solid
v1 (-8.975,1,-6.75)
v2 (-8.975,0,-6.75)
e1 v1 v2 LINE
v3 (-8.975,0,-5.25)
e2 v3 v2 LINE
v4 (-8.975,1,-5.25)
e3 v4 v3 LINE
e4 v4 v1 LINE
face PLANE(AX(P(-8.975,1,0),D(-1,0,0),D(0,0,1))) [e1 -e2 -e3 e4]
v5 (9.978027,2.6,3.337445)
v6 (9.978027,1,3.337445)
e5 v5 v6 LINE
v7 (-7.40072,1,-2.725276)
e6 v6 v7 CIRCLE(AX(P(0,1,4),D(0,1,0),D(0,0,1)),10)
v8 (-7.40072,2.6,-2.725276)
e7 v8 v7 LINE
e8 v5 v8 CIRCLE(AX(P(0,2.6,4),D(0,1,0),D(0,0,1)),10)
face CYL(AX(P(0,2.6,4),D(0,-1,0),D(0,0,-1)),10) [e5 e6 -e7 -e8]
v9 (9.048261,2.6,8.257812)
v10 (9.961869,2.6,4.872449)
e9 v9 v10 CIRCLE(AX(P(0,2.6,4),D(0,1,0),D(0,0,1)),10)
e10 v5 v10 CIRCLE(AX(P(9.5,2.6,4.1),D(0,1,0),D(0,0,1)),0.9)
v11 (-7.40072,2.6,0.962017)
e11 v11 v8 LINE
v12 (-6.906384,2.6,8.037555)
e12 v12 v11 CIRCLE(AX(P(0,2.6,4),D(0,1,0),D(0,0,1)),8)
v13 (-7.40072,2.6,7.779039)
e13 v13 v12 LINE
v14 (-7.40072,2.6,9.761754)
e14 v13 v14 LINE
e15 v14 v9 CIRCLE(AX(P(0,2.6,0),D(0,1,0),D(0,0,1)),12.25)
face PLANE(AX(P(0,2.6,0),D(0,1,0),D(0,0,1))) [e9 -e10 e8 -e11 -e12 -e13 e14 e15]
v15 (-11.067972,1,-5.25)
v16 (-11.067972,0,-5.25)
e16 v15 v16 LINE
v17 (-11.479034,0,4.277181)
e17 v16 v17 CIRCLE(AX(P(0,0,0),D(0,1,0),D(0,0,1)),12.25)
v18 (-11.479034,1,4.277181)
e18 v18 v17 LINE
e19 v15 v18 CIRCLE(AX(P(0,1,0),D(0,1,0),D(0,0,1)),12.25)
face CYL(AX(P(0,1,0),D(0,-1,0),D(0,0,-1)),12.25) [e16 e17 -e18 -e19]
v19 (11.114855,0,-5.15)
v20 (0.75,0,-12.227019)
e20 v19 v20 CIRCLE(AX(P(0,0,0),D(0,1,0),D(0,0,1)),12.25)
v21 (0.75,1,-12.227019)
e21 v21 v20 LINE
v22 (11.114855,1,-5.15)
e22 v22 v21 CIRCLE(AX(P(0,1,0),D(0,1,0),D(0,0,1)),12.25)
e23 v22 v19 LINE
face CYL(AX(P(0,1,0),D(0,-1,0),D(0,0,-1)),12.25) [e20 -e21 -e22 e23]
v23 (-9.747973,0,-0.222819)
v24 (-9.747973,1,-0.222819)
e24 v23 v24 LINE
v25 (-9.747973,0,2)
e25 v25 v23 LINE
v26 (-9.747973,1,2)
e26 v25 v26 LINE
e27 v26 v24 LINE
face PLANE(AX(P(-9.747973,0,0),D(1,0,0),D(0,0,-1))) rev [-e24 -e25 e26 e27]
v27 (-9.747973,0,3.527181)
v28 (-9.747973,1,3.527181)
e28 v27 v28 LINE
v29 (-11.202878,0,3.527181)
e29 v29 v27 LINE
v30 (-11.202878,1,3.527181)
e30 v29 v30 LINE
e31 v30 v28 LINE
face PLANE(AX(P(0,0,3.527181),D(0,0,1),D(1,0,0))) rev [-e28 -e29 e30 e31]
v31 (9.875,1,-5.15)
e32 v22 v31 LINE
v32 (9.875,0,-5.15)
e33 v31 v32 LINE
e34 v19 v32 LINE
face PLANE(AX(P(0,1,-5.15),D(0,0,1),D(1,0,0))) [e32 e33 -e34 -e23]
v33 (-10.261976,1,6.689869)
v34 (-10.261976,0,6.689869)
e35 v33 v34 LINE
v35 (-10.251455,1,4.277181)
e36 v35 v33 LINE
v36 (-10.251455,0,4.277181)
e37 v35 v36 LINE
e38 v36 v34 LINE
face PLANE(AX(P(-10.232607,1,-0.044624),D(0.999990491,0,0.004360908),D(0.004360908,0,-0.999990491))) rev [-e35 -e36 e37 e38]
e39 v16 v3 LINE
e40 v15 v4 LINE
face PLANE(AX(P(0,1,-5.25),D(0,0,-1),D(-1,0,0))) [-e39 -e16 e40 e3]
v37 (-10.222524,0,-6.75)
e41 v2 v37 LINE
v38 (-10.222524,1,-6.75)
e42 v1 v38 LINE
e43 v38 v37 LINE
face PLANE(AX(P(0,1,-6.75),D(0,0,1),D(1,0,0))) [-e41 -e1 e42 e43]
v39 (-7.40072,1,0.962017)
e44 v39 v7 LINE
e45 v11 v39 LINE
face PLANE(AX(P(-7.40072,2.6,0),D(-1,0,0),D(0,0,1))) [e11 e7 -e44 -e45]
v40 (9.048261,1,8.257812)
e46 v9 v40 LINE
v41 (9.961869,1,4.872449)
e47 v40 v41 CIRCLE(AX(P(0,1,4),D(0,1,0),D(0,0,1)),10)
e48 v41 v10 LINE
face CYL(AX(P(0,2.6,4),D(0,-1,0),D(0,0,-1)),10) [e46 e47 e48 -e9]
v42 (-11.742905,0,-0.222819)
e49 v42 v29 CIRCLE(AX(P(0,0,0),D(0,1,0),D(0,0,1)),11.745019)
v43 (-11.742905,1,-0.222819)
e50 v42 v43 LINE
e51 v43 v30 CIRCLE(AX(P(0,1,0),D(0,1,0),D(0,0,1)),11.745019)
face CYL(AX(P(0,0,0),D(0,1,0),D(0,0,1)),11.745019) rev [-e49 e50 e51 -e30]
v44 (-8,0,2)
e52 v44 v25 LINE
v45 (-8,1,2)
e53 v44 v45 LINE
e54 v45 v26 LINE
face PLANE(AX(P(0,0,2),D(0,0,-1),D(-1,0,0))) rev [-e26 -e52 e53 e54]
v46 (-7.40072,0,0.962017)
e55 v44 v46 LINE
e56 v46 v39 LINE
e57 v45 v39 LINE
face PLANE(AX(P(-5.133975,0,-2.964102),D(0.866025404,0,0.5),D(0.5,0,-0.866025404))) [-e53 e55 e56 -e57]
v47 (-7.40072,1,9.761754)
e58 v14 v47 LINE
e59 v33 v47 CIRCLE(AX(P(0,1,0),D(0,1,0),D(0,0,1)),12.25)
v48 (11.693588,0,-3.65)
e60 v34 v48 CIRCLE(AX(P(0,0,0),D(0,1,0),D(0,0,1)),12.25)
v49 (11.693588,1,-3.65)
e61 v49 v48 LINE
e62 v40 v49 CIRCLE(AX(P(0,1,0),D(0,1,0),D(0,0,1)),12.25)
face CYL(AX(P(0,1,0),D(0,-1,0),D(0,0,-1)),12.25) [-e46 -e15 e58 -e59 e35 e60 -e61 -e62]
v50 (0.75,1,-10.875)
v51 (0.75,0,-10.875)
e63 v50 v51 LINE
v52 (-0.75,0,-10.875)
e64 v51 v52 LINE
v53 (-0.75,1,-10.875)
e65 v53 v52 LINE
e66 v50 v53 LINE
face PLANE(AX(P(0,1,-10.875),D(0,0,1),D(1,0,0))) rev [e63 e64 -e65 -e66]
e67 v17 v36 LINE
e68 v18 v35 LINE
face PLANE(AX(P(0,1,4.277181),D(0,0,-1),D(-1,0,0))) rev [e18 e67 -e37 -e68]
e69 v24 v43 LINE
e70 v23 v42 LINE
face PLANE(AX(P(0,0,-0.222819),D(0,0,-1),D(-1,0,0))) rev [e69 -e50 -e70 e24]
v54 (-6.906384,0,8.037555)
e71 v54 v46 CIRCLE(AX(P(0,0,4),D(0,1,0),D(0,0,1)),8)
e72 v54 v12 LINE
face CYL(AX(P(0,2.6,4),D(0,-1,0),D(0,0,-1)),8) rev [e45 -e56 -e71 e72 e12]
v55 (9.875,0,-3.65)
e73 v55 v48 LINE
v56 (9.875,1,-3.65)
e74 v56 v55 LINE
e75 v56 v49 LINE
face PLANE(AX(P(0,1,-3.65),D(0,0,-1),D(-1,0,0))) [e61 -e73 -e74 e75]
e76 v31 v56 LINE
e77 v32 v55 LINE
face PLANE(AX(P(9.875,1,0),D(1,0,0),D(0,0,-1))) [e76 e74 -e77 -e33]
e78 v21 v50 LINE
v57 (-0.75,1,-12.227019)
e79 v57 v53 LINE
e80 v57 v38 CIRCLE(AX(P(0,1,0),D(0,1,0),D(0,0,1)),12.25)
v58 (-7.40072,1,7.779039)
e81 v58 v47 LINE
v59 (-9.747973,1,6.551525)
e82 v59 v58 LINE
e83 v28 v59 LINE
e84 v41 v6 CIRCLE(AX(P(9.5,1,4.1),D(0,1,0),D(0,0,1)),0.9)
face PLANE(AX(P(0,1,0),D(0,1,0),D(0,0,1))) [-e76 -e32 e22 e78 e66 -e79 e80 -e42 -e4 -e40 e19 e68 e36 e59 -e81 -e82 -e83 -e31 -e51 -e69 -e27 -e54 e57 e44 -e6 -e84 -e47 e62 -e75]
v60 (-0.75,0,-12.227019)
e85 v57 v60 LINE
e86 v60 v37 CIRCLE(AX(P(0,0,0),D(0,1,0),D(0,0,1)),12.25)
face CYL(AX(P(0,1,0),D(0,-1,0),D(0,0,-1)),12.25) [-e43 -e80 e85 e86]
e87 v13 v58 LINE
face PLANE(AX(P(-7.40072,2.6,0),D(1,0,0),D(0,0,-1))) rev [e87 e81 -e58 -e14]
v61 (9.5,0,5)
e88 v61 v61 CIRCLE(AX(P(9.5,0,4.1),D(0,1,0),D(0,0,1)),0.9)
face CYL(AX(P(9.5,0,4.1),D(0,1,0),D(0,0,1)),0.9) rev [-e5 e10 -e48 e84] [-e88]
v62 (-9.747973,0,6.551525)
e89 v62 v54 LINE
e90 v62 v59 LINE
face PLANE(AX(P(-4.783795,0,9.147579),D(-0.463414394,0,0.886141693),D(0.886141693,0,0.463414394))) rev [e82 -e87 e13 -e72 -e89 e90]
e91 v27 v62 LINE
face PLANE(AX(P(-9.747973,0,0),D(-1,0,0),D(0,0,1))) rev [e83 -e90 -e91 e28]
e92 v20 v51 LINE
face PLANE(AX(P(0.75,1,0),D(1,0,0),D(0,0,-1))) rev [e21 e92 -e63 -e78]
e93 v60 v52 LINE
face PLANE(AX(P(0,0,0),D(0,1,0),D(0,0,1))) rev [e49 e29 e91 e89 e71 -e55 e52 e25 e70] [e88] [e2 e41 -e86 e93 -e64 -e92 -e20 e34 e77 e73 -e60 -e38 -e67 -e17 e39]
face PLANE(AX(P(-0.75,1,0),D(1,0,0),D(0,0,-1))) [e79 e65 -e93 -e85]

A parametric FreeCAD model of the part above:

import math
import FreeCAD as App
import Part
import Sketcher

V = App.Vector
Q = App.Units.Quantity

doc = App.newDocument("Part")
body = doc.addObject("PartDesign::Body", "Body")

sketch1 = doc.addObject("Sketcher::SketchObject", "Sketch")
body.addObject(sketch1)
sketch1.AttachmentSupport = (doc.XZ_Plane, [""])
sketch1.MapMode = "FlatFace"
sketch1.addGeometry(Part.LineSegment(V(-0.75, -10.875, 0), V(-0.75, -12.227019, 0)), False)
sketch1.addGeometry(Part.ArcOfCircle(Part.Circle(V(0, 0, 0), V(0, 0, 1), 12.25), math.radians(-146.562955), math.radians(-93.5101)), False)
sketch1.addGeometry(Part.LineSegment(V(-10.222524, -6.75, 0), V(-8.975, -6.75, 0)), False)
sketch1.addGeometry(Part.LineSegment(V(-8.975, -6.75, 0), V(-8.975, -5.25, 0)), False)
sketch1.addGeometry(Part.LineSegment(V(-8.975, -5.25, 0), V(-11.067972, -5.25, 0)), False)
sketch1.addGeometry(Part.ArcOfCircle(Part.Circle(V(0, 0, 0), V(0, 0, 1), 12.25), math.radians(159.564202), math.radians(205.376934)), False)
sketch1.addGeometry(Part.LineSegment(V(-11.479034, 4.277181, 0), V(-10.251455, 4.277181, 0)), False)
sketch1.addGeometry(Part.LineSegment(V(-10.251455, 4.277181, 0), V(-10.261976, 6.689869, 0)), False)
sketch1.addGeometry(Part.ArcOfCircle(Part.Circle(V(0, 0, 0), V(0, 0, 1), 12.25), math.radians(-17.335068), math.radians(146.899331)), False)
sketch1.addGeometry(Part.LineSegment(V(11.693588, -3.65, 0), V(9.875, -3.65, 0)), False)
sketch1.addGeometry(Part.LineSegment(V(9.875, -3.65, 0), V(9.875, -5.15, 0)), False)
sketch1.addGeometry(Part.LineSegment(V(9.875, -5.15, 0), V(11.114855, -5.15, 0)), False)
sketch1.addGeometry(Part.ArcOfCircle(Part.Circle(V(0, 0, 0), V(0, 0, 1), 12.25), math.radians(-86.4899), math.radians(-24.860359)), False)
sketch1.addGeometry(Part.LineSegment(V(0.75, -12.227019, 0), V(0.75, -10.875, 0)), False)
sketch1.addGeometry(Part.LineSegment(V(0.75, -10.875, 0), V(-0.75, -10.875, 0)), False)
sketch1.addConstraint(Sketcher.Constraint("Coincident", 0, 2, 1, 2))
sketch1.addConstraint(Sketcher.Constraint("Coincident", 1, 1, 2, 1))
sketch1.addConstraint(Sketcher.Constraint("Coincident", 2, 2, 3, 1))
sketch1.addConstraint(Sketcher.Constraint("Coincident", 3, 2, 4, 1))
sketch1.addConstraint(Sketcher.Constraint("Coincident", 4, 2, 5, 2))
sketch1.addConstraint(Sketcher.Constraint("Coincident", 5, 1, 6, 1))
sketch1.addConstraint(Sketcher.Constraint("Coincident", 6, 2, 7, 1))
sketch1.addConstraint(Sketcher.Constraint("Coincident", 7, 2, 8, 2))
sketch1.addConstraint(Sketcher.Constraint("Coincident", 8, 1, 9, 1))
sketch1.addConstraint(Sketcher.Constraint("Coincident", 9, 2, 10, 1))
sketch1.addConstraint(Sketcher.Constraint("Coincident", 10, 2, 11, 1))
sketch1.addConstraint(Sketcher.Constraint("Coincident", 11, 2, 12, 2))
sketch1.addConstraint(Sketcher.Constraint("Coincident", 12, 1, 13, 1))
sketch1.addConstraint(Sketcher.Constraint("Coincident", 13, 2, 14, 1))
sketch1.addConstraint(Sketcher.Constraint("Coincident", 14, 2, 0, 1))
sketch1.addConstraint(Sketcher.Constraint("Vertical", 0))
sketch1.addConstraint(Sketcher.Constraint("Horizontal", 2))
sketch1.addConstraint(Sketcher.Constraint("Vertical", 3))
sketch1.addConstraint(Sketcher.Constraint("Horizontal", 4))
sketch1.addConstraint(Sketcher.Constraint("Horizontal", 6))
sketch1.addConstraint(Sketcher.Constraint("Horizontal", 9))
sketch1.addConstraint(Sketcher.Constraint("Vertical", 10))
sketch1.addConstraint(Sketcher.Constraint("Horizontal", 11))
sketch1.addConstraint(Sketcher.Constraint("Vertical", 13))
sketch1.addConstraint(Sketcher.Constraint("Horizontal", 14))
sketch1.addConstraint(Sketcher.Constraint("Coincident", 1, 3, -1, 1))
sketch1.addConstraint(Sketcher.Constraint("Coincident", 5, 3, -1, 1))
sketch1.addConstraint(Sketcher.Constraint("Coincident", 8, 3, -1, 1))
sketch1.addConstraint(Sketcher.Constraint("Coincident", 12, 3, -1, 1))
sketch1.addConstraint(Sketcher.Constraint("Equal", 1, 5))
sketch1.addConstraint(Sketcher.Constraint("Equal", 5, 8))
sketch1.addConstraint(Sketcher.Constraint("Equal", 8, 12))
sketch1.addConstraint(Sketcher.Constraint("Horizontal", 0, 2, 12, 1))
sketch1.addConstraint(Sketcher.Constraint("Equal", 14, 3))
sketch1.addConstraint(Sketcher.Constraint("Equal", 3, 10))
sketch1.addConstraint(Sketcher.Constraint("Radius", 1, 12.25))
sketch1.addConstraint(Sketcher.Constraint("DistanceX", 14, 2, 14, 1, 1.5))
sketch1.addConstraint(Sketcher.Constraint("DistanceY", 1, 1, -1, 1, 6.75))
sketch1.addConstraint(Sketcher.Constraint("DistanceY", 8, 1, -1, 1, 3.65))
sketch1.addConstraint(Sketcher.Constraint("DistanceX", 2, 2, -1, 1, 8.975))
sketch1.addConstraint(Sketcher.Constraint("DistanceX", -1, 1, 9, 2, 9.875))
sketch1.addConstraint(Sketcher.Constraint("DistanceY", 13, 2, -1, 1, 10.875))
sketch1.addConstraint(Sketcher.Constraint("DistanceX", 6, 1, 6, 2, 1.22758))
sketch1.addConstraint(Sketcher.Constraint("Distance", 7, 2.412711))
sketch1.addConstraint(Sketcher.Constraint("DistanceY", -1, 1, 5, 1, 4.277181))
pad1 = doc.addObject("PartDesign::Pad", "Pad")
body.addObject(pad1)
pad1.Profile = sketch1
pad1.Length = 1
pad1.Reversed = True

sketch2 = doc.addObject("Sketcher::SketchObject", "Sketch001")
body.addObject(sketch2)
sketch2.AttachmentSupport = (doc.XZ_Plane, [""])
sketch2.MapMode = "FlatFace"
sketch2.AttachmentOffset = App.Placement(V(0, 0, -1), App.Rotation())
sketch2.addGeometry(Part.LineSegment(V(-7.40072, -2.725276, 0), V(-7.40072, 0.962017, 0)), False)
sketch2.addGeometry(Part.ArcOfCircle(Part.Circle(V(0, 4, 0), V(0, 0, 1), 8), math.radians(-157.681931), math.radians(157.681931)), False)
sketch2.addGeometry(Part.LineSegment(V(-7.40072, 7.037983, 0), V(-7.40072, 9.761754, 0)), False)
sketch2.addGeometry(Part.ArcOfCircle(Part.Circle(V(0, 0, 0), V(0, 0, 1), 12.25), math.radians(42.384853), math.radians(127.167012)), False)
sketch2.addGeometry(Part.ArcOfCircle(Part.Circle(V(0, 4, 0), V(0, 0, 1), 10), math.radians(-137.73755), math.radians(25.200124)), False)
sketch2.addConstraint(Sketcher.Constraint("Coincident", 0, 2, 1, 1))
sketch2.addConstraint(Sketcher.Constraint("Coincident", 1, 2, 2, 1))
sketch2.addConstraint(Sketcher.Constraint("Coincident", 2, 2, 3, 2))
sketch2.addConstraint(Sketcher.Constraint("Coincident", 3, 1, 4, 2))
sketch2.addConstraint(Sketcher.Constraint("Coincident", 4, 1, 0, 1))
sketch2.addConstraint(Sketcher.Constraint("Vertical", 0))
sketch2.addConstraint(Sketcher.Constraint("Vertical", 2))
sketch2.addConstraint(Sketcher.Constraint("Coincident", 3, 3, -1, 1))
sketch2.addConstraint(Sketcher.Constraint("Coincident", 4, 3, 1, 3))
sketch2.addConstraint(Sketcher.Constraint("PointOnObject", 1, 3, -2))
sketch2.addConstraint(Sketcher.Constraint("Vertical", 0, 2, 1, 2))
sketch2.addConstraint(Sketcher.Constraint("Radius", 1, 8.0))
sketch2.addConstraint(Sketcher.Constraint("Radius", 4, 10.0))
sketch2.addConstraint(Sketcher.Constraint("Radius", 3, 12.25))
sketch2.addConstraint(Sketcher.Constraint("DistanceY", -1, 1, 1, 3, 4.0))
sketch2.addConstraint(Sketcher.Constraint("DistanceY", 2, 1, 2, 2, 2.723771))
pad2 = doc.addObject("PartDesign::Pad", "Pad001")
body.addObject(pad2)
pad2.Profile = sketch2
pad2.Length = 1.6
pad2.Reversed = True

sketch3 = doc.addObject("Sketcher::SketchObject", "Sketch002")
body.addObject(sketch3)
sketch3.AttachmentSupport = (doc.XZ_Plane, [""])
sketch3.MapMode = "FlatFace"
sketch3.AttachmentOffset = App.Placement(V(0, 0, -1), App.Rotation())
sketch3.addGeometry(Part.LineSegment(V(-8, 2, 0), V(-9.747973, 2, 0)), False)
sketch3.addGeometry(Part.LineSegment(V(-9.747973, 2, 0), V(-9.747973, -0.222819, 0)), False)
sketch3.addGeometry(Part.LineSegment(V(-9.747973, -0.222819, 0), V(-11.742905, -0.222819, 0)), False)
sketch3.addGeometry(Part.ArcOfCircle(Part.Circle(V(0, 0, 0), V(0, 0, 1), 11.745019), math.radians(162.523603), math.radians(181.087046)), False)
sketch3.addGeometry(Part.LineSegment(V(-11.202878, 3.527181, 0), V(-9.747973, 3.527181, 0)), False)
sketch3.addGeometry(Part.LineSegment(V(-9.747973, 3.527181, 0), V(-9.747973, 6.551525, 0)), False)
sketch3.addGeometry(Part.LineSegment(V(-9.747973, 6.551525, 0), V(-6.906384, 8.037555, 0)), False)
sketch3.addGeometry(Part.ArcOfCircle(Part.Circle(V(0, 4, 0), V(0, 0, 1), 8), math.radians(-157.681931), math.radians(149.68893)), False)
sketch3.addGeometry(Part.LineSegment(V(-7.40072, 0.962017, 0), V(-8, 2, 0)), False)
sketch3.addGeometry(Part.Circle(V(9.5, 4.1, 0), V(0, 0, 1), 0.9), False)
sketch3.addConstraint(Sketcher.Constraint("Coincident", 0, 2, 1, 1))
sketch3.addConstraint(Sketcher.Constraint("Coincident", 1, 2, 2, 1))
sketch3.addConstraint(Sketcher.Constraint("Coincident", 2, 2, 3, 2))
sketch3.addConstraint(Sketcher.Constraint("Coincident", 3, 1, 4, 1))
sketch3.addConstraint(Sketcher.Constraint("Coincident", 4, 2, 5, 1))
sketch3.addConstraint(Sketcher.Constraint("Coincident", 5, 2, 6, 1))
sketch3.addConstraint(Sketcher.Constraint("Coincident", 6, 2, 7, 2))
sketch3.addConstraint(Sketcher.Constraint("Coincident", 7, 1, 8, 1))
sketch3.addConstraint(Sketcher.Constraint("Coincident", 8, 2, 0, 1))
sketch3.addConstraint(Sketcher.Constraint("Horizontal", 0))
sketch3.addConstraint(Sketcher.Constraint("Vertical", 1))
sketch3.addConstraint(Sketcher.Constraint("Horizontal", 2))
sketch3.addConstraint(Sketcher.Constraint("Horizontal", 4))
sketch3.addConstraint(Sketcher.Constraint("Vertical", 5))
sketch3.addConstraint(Sketcher.Constraint("Coincident", 3, 3, -1, 1))
sketch3.addConstraint(Sketcher.Constraint("PointOnObject", 7, 3, -2))
sketch3.addConstraint(Sketcher.Constraint("Vertical", 1, 2, 4, 2))
sketch3.addConstraint(Sketcher.Constraint("Radius", 7, 8.0))
sketch3.addConstraint(Sketcher.Constraint("Diameter", 9, 1.8))
sketch3.addConstraint(Sketcher.Constraint("Angle", 8, Q("120 deg")))
sketch3.addConstraint(Sketcher.Constraint("DistanceY", -1, 1, 7, 3, 4.0))
sketch3.addConstraint(Sketcher.Constraint("DistanceY", -1, 1, 0, 2, 2.0))
sketch3.addConstraint(Sketcher.Constraint("DistanceX", 8, 2, -1, 1, 8.0))
sketch3.addConstraint(Sketcher.Constraint("DistanceX", -1, 1, 9, 3, 9.5))
sketch3.addConstraint(Sketcher.Constraint("DistanceY", -1, 1, 9, 3, 4.1))
sketch3.addConstraint(Sketcher.Constraint("Radius", 3, 11.745019))
sketch3.addConstraint(Sketcher.Constraint("DistanceY", 2, 2, 3, 1, 3.75))
sketch3.addConstraint(Sketcher.Constraint("Distance", 6, 3.206698))
sketch3.addConstraint(Sketcher.Constraint("DistanceX", 2, 2, 2, 1, 1.994932))
sketch3.addConstraint(Sketcher.Constraint("DistanceY", 1, 2, 1, 1, 2.222819))
sketch3.addConstraint(Sketcher.Constraint("DistanceY", 5, 1, 5, 2, 3.024345))
pocket1 = doc.addObject("PartDesign::Pocket", "Pocket")
body.addObject(pocket1)
pocket1.Profile = sketch3
pocket1.Type = "ThroughAll"
pocket1.Midplane = True

doc.recompute()
